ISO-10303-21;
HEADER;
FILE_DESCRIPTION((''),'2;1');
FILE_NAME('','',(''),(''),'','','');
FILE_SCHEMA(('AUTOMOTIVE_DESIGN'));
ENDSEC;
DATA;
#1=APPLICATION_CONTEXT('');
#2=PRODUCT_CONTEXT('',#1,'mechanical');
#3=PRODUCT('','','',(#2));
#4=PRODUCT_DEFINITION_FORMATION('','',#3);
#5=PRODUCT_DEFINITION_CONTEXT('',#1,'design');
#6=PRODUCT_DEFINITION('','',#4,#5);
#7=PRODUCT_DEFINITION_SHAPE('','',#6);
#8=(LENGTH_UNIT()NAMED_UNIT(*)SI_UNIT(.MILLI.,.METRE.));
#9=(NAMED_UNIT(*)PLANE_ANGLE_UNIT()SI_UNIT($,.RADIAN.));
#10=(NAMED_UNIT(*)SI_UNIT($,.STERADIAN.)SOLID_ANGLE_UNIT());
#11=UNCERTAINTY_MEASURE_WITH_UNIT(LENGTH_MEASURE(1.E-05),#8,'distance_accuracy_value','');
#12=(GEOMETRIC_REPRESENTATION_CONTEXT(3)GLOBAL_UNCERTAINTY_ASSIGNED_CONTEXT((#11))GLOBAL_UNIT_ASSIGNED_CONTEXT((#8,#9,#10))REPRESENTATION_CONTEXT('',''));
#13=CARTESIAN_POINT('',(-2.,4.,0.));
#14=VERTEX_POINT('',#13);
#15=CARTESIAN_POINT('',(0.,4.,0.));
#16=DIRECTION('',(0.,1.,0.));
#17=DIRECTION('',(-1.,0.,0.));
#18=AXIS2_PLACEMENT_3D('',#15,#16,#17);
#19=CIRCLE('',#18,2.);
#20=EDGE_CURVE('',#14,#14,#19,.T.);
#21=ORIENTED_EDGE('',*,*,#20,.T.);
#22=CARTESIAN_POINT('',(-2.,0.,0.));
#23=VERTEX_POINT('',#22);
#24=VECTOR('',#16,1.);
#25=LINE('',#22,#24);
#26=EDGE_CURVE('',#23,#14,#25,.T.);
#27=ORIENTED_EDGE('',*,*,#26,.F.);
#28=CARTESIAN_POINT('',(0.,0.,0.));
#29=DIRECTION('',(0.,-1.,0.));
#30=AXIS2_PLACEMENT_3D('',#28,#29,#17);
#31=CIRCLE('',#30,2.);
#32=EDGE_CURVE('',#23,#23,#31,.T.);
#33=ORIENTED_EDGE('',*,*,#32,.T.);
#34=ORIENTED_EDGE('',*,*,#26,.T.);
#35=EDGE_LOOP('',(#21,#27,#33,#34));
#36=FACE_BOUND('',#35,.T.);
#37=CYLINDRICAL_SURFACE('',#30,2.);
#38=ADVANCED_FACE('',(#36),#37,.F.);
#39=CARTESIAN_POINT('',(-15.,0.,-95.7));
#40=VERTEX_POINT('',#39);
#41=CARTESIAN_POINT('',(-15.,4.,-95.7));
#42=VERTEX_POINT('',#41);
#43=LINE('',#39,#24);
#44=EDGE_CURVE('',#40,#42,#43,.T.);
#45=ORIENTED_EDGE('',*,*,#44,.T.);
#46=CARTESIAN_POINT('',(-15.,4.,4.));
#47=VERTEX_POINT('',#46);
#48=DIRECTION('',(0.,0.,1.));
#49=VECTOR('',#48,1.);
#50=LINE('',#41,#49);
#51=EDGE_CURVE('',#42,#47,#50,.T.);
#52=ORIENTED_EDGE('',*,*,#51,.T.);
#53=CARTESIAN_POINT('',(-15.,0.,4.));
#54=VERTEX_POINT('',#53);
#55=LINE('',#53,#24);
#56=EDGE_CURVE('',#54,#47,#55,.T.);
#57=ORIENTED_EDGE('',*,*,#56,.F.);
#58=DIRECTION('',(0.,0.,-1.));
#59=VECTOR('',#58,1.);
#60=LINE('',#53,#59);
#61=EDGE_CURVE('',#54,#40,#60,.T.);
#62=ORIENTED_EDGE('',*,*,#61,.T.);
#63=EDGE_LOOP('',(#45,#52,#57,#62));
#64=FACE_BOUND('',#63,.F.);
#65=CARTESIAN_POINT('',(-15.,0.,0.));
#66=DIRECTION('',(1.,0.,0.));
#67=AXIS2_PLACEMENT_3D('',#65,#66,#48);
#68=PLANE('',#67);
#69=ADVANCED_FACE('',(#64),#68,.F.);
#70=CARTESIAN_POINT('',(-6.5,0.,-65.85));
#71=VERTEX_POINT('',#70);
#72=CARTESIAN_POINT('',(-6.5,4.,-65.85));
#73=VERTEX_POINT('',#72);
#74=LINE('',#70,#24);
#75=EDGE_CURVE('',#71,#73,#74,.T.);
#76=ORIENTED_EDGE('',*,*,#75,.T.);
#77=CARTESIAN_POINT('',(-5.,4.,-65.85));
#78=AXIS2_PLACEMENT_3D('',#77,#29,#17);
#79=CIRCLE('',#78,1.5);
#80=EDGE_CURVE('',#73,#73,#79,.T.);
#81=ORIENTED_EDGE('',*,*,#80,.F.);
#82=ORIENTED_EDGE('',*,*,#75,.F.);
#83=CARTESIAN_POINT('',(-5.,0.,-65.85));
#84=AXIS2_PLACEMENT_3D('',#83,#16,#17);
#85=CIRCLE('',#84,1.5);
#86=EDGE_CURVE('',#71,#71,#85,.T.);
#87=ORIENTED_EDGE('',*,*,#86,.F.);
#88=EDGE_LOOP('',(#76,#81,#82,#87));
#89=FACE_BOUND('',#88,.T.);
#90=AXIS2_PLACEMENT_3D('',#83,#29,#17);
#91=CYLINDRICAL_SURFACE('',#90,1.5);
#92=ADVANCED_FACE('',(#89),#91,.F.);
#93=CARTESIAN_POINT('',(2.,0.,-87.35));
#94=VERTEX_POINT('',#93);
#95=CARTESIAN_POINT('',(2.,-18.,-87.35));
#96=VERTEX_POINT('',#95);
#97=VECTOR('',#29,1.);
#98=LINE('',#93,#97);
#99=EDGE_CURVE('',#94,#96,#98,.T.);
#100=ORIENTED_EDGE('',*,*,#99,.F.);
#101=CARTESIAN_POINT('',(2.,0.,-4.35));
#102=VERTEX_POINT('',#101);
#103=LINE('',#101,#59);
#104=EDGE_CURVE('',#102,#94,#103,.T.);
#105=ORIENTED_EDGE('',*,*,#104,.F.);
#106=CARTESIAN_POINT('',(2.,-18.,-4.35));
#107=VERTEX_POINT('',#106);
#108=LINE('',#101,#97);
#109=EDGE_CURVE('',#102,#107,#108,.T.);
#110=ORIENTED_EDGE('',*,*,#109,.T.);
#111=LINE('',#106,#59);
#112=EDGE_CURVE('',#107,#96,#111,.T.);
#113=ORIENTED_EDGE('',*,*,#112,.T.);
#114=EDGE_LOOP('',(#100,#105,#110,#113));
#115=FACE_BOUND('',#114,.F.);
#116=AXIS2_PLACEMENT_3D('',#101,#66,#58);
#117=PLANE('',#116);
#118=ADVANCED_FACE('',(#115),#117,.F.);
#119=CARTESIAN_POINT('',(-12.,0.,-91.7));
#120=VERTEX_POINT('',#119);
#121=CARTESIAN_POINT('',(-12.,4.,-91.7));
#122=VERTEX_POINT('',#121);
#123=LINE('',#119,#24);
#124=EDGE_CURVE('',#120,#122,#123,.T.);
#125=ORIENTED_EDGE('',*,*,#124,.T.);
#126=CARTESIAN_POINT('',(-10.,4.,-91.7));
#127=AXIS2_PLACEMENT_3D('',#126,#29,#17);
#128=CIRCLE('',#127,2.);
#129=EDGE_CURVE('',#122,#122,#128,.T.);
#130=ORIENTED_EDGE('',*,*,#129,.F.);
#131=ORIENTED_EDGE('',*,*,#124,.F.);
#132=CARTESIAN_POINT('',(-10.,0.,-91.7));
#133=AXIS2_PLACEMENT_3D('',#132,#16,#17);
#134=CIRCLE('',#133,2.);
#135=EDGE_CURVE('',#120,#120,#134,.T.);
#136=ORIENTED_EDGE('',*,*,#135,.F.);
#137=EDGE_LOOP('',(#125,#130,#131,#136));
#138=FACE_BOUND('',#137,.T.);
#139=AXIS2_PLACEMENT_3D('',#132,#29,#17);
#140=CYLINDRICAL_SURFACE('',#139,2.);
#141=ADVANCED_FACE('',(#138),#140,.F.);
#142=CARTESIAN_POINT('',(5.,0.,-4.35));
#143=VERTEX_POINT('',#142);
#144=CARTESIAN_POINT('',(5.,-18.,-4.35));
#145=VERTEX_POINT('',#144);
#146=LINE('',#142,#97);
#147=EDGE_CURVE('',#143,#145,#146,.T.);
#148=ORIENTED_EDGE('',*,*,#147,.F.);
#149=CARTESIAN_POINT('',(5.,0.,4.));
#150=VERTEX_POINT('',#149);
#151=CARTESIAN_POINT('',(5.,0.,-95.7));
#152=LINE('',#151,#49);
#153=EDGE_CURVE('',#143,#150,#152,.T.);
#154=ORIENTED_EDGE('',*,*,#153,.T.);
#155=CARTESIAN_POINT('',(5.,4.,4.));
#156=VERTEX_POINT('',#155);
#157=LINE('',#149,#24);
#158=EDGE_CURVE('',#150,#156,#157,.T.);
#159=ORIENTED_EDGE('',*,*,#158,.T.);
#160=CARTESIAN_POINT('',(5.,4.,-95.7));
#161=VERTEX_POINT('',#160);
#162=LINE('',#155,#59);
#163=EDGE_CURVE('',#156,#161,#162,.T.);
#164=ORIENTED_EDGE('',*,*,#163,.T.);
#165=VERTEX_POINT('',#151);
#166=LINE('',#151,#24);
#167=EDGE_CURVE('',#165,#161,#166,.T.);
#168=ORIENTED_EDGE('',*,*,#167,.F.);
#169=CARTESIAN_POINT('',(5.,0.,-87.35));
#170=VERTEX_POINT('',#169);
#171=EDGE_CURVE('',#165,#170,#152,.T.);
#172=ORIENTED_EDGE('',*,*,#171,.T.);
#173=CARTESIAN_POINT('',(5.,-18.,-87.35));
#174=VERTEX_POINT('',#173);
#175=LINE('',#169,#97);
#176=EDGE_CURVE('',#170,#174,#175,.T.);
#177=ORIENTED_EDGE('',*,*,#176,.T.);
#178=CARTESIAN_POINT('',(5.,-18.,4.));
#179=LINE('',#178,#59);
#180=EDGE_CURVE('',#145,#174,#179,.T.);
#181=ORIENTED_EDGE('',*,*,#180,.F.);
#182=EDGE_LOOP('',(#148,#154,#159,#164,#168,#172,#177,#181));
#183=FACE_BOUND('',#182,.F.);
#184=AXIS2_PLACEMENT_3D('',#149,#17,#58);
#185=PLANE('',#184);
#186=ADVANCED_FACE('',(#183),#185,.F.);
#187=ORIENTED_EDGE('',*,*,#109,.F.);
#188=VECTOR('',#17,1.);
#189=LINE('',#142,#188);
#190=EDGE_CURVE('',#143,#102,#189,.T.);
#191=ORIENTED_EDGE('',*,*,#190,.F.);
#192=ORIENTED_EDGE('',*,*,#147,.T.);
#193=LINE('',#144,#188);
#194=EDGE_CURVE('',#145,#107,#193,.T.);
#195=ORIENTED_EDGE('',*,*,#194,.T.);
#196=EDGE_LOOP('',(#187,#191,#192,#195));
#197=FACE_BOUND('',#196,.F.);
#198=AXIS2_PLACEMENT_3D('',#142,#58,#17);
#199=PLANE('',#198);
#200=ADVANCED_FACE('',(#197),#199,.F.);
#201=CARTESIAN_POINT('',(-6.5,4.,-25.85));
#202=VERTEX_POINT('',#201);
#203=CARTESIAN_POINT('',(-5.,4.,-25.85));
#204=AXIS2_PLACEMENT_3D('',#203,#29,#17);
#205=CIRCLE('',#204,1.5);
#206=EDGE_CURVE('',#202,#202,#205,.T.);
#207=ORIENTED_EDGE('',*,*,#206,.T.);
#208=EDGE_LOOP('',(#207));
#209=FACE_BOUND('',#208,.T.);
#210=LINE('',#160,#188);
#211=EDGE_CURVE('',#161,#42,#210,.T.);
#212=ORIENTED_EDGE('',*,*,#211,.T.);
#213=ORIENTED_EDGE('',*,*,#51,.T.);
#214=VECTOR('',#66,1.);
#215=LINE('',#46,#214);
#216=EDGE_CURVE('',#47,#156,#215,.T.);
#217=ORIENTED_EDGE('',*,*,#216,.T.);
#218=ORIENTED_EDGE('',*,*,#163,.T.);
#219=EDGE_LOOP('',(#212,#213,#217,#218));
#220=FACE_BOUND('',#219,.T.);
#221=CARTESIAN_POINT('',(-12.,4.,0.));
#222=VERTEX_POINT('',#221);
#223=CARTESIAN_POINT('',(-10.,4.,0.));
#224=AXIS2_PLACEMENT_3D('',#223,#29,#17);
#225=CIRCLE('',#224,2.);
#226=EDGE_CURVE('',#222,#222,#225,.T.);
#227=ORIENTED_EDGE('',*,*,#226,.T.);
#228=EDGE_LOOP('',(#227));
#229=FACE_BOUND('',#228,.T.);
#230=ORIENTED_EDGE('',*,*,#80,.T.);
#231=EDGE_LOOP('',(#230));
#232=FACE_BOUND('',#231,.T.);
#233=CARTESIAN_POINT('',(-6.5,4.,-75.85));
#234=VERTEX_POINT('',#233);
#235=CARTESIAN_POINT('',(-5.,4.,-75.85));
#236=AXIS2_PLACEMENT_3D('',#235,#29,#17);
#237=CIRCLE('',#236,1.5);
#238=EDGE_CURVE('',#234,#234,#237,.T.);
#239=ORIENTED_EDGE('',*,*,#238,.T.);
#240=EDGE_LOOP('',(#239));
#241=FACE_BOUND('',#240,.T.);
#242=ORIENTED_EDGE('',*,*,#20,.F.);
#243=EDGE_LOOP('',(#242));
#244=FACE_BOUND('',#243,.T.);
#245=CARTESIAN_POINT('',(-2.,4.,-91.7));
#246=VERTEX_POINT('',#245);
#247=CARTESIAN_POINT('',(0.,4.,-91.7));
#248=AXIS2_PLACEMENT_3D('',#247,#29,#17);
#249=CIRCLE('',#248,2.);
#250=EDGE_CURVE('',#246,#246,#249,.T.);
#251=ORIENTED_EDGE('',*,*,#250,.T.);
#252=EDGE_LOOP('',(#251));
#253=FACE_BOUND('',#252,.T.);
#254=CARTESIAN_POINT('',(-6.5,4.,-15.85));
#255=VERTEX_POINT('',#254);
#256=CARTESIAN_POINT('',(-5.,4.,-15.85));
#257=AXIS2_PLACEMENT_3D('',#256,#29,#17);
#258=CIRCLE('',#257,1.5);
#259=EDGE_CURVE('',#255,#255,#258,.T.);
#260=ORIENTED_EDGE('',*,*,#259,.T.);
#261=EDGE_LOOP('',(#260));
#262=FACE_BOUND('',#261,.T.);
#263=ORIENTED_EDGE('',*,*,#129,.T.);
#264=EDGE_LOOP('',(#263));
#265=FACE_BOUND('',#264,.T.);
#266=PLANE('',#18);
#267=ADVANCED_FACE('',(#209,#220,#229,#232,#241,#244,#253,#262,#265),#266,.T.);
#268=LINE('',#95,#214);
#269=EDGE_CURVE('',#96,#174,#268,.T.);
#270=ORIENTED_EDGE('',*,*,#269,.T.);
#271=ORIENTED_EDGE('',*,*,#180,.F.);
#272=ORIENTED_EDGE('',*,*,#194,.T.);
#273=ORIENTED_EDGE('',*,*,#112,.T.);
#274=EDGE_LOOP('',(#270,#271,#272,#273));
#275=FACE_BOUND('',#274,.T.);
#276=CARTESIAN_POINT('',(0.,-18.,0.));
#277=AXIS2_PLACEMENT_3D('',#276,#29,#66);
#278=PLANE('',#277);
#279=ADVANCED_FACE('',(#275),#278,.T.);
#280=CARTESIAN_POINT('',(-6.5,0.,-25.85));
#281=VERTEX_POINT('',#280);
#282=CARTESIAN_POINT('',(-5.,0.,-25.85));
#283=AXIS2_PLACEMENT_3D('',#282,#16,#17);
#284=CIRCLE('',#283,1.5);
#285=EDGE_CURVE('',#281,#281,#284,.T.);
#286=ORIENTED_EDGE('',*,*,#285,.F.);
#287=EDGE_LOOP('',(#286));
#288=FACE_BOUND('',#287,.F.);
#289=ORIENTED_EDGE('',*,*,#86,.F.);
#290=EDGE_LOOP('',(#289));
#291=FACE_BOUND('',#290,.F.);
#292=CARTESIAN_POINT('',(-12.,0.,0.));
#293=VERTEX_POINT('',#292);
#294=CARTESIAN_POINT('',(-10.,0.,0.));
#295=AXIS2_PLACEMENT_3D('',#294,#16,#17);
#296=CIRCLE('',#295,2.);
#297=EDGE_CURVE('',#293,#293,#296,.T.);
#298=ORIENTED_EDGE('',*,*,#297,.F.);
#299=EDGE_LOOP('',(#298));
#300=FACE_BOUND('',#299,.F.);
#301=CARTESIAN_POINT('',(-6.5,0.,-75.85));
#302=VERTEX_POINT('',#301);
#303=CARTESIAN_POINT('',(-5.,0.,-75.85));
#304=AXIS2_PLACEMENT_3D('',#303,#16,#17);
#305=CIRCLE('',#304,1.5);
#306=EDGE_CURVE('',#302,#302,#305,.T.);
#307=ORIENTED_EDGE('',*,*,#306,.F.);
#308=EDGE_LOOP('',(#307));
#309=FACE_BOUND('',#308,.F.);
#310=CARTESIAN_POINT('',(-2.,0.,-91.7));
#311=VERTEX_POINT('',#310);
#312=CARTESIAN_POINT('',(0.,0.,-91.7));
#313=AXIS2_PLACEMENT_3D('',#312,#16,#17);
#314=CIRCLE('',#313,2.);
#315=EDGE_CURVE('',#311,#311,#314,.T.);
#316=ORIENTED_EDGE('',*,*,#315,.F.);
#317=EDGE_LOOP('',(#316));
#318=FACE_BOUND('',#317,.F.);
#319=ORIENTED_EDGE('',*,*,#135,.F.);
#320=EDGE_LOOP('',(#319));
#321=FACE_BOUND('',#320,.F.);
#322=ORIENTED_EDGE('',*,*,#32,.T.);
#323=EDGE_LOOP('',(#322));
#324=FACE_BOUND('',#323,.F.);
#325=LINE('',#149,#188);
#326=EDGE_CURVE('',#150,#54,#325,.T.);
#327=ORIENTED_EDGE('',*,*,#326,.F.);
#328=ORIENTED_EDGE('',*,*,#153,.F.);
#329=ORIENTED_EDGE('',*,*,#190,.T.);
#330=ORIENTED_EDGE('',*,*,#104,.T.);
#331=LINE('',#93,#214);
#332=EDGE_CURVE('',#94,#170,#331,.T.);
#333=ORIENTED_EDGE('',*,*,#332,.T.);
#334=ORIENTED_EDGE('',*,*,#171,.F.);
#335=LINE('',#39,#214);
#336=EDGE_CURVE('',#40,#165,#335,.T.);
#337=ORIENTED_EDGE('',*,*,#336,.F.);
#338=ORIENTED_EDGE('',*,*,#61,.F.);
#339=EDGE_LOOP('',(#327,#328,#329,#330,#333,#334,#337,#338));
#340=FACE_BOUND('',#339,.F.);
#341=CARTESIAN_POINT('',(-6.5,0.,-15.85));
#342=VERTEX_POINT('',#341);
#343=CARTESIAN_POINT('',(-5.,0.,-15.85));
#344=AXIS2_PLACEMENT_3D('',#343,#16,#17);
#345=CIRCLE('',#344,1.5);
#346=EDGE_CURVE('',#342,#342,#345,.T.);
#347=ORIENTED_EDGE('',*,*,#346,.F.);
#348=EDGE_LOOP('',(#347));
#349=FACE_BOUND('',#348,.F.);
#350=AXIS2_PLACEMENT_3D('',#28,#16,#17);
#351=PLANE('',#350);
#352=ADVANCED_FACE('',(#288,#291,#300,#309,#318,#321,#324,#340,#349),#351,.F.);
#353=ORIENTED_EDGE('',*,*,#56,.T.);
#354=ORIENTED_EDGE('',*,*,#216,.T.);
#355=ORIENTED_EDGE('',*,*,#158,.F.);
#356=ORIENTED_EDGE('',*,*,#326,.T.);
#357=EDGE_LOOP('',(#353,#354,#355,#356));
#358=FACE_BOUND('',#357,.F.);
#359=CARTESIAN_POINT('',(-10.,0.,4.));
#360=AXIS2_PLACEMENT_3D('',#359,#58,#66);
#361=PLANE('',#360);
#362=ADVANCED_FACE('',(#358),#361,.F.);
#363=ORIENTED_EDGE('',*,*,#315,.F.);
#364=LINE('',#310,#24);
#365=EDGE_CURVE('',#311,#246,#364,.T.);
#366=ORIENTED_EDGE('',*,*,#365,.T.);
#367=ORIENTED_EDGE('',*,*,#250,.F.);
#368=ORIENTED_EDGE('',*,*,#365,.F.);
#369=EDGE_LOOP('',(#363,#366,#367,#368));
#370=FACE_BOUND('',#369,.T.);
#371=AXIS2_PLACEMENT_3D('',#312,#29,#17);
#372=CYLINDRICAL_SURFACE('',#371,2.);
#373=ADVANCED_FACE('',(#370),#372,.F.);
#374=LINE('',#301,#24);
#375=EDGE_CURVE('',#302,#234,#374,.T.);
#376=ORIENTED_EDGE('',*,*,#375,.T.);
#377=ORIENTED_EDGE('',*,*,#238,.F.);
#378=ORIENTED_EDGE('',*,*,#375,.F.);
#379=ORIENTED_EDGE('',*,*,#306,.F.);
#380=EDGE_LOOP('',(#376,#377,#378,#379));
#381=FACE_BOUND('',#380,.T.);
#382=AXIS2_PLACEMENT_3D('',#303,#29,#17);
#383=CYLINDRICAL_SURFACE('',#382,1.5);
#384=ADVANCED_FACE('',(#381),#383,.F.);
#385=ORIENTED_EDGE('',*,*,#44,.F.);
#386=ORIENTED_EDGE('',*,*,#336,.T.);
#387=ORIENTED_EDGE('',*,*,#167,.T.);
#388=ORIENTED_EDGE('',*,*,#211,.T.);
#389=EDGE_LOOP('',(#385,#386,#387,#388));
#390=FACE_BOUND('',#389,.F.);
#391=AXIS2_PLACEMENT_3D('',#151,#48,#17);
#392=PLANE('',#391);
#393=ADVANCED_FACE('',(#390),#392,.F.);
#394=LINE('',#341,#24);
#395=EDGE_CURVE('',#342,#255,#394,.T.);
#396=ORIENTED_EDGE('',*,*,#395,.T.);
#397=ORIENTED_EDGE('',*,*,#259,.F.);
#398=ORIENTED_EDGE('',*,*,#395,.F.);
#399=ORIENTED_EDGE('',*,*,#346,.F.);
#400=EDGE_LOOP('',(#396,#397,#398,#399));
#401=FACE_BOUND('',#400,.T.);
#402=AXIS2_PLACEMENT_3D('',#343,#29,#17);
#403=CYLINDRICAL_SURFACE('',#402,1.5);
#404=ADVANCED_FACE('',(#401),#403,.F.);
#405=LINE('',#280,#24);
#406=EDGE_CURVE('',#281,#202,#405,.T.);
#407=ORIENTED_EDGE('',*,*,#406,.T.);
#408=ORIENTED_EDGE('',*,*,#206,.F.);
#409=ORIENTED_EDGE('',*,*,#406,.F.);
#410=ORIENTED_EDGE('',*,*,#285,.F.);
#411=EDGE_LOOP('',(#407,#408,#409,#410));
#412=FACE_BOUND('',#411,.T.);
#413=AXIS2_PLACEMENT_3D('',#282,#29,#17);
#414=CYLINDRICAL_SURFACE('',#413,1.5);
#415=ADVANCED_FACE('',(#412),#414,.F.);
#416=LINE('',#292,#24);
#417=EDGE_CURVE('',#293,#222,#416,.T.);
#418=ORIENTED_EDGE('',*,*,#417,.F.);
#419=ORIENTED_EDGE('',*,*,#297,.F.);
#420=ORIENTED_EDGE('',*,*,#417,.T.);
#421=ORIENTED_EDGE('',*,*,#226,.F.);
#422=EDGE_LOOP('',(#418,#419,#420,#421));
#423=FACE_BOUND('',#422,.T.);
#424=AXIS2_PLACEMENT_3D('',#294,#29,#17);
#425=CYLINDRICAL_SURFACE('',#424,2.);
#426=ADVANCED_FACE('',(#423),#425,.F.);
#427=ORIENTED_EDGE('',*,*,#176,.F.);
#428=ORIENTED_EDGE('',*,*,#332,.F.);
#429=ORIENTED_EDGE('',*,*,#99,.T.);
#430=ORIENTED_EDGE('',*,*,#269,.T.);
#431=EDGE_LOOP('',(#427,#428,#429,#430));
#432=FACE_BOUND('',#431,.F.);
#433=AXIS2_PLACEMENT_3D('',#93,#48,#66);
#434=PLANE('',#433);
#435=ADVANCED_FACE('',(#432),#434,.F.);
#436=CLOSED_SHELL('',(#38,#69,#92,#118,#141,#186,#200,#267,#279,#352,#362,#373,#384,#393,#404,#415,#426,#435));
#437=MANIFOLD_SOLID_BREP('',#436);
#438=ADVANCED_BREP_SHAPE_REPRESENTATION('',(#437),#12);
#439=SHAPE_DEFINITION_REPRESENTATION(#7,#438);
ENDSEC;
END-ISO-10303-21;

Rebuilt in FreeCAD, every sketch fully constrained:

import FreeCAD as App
import Part
import Sketcher
from FreeCAD import Vector

doc = App.newDocument("Part")
body = doc.addObject("PartDesign::Body", "Body")

# Sketch on XZ plane
sketch1 = body.newObject("Sketcher::SketchObject", "Sketch")
sketch1.AttachmentSupport = (doc.getObject("XZ_Plane"), [""])
sketch1.MapMode = "FlatFace"
sketch1.addGeometry([
    Part.LineSegment(Vector(5, 4, 0), Vector(5, -95.7, 0)),  # 0
    Part.LineSegment(Vector(5, -95.7, 0), Vector(-15, -95.7, 0)),  # 1
    Part.LineSegment(Vector(-15, -95.7, 0), Vector(-15, 4, 0)),  # 2
    Part.LineSegment(Vector(-15, 4, 0), Vector(5, 4, 0)),  # 3
    Part.Circle(Vector(0, 0, 0), Vector(0, 0, 1), 2),  # 4
    Part.Circle(Vector(0, -91.7, 0), Vector(0, 0, 1), 2),  # 5
    Part.Circle(Vector(-10, 0, 0), Vector(0, 0, 1), 2),  # 6
    Part.Circle(Vector(-5, -15.85, 0), Vector(0, 0, 1), 1.5),  # 7
    Part.Circle(Vector(-5, -25.85, 0), Vector(0, 0, 1), 1.5),  # 8
    Part.Circle(Vector(-5, -65.85, 0), Vector(0, 0, 1), 1.5),  # 9
    Part.Circle(Vector(-5, -75.85, 0), Vector(0, 0, 1), 1.5),  # 10
    Part.Circle(Vector(-10, -91.7, 0), Vector(0, 0, 1), 2),  # 11
], False)
sketch1.addConstraint([
    Sketcher.Constraint("Coincident", 0, 2, 1, 1),
    Sketcher.Constraint("Coincident", 1, 2, 2, 1),
    Sketcher.Constraint("Coincident", 2, 2, 3, 1),
    Sketcher.Constraint("Coincident", 3, 2, 0, 1),
    Sketcher.Constraint("Vertical", 0),
    Sketcher.Constraint("Horizontal", 1),
    Sketcher.Constraint("Vertical", 2),
    Sketcher.Constraint("Horizontal", 3),
    Sketcher.Constraint("Coincident", 4, 3, -1, 1),
    Sketcher.Constraint("Equal", 4, 5),
    Sketcher.Constraint("Equal", 5, 6),
    Sketcher.Constraint("Equal", 7, 8),
    Sketcher.Constraint("Equal", 8, 9),
    Sketcher.Constraint("Equal", 9, 10),
    Sketcher.Constraint("Equal", 6, 11),
    Sketcher.Constraint("PointOnObject", 5, 3, -2),
    Sketcher.Constraint("PointOnObject", 6, 3, -1),
    Sketcher.Constraint("Horizontal", 5, 3, 11, 3),
    Sketcher.Constraint("Vertical", 7, 3, 8, 3),
    Sketcher.Constraint("Vertical", 8, 3, 9, 3),
    Sketcher.Constraint("Vertical", 9, 3, 10, 3),
    Sketcher.Constraint("Vertical", 6, 3, 11, 3),
    Sketcher.Constraint("Diameter", 4, 4.0),
    Sketcher.Constraint("Diameter", 7, 3.0),
    Sketcher.Constraint("DistanceX", 6, 3, -1, 1, 10.0),
    Sketcher.Constraint("DistanceX", 7, 3, -1, 1, 5.0),
    Sketcher.Constraint("DistanceX", -1, 1, 0, 2, 5.0),
    Sketcher.Constraint("DistanceY", -1, 1, 2, 2, 4.0),
    Sketcher.Constraint("DistanceY", 8, 3, 7, 3, 10.0),
    Sketcher.Constraint("DistanceY", 9, 3, 7, 3, 50.0),
    Sketcher.Constraint("DistanceY", 10, 3, 9, 3, 10.0),
    Sketcher.Constraint("DistanceY", 0, 2, 5, 3, 4.0),
    Sketcher.Constraint("DistanceX", 1, 2, 11, 3, 5.0),
    Sketcher.Constraint("DistanceY", 5, 3, -1, 1, 91.7),
    Sketcher.Constraint("DistanceY", 7, 3, -1, 1, 15.85),
])
pad1 = body.newObject("PartDesign::Pad", "Pad")
pad1.Profile = sketch1
pad1.Length = 4
pad1.Reversed = True

# Sketch on XZ plane
sketch2 = body.newObject("Sketcher::SketchObject", "Sketch001")
sketch2.AttachmentSupport = (doc.getObject("XZ_Plane"), [""])
sketch2.MapMode = "FlatFace"
sketch2.addGeometry([
    Part.LineSegment(Vector(5, -87.35, 0), Vector(5, -4.35, 0)),
    Part.LineSegment(Vector(5, -4.35, 0), Vector(2, -4.35, 0)),
    Part.LineSegment(Vector(2, -4.35, 0), Vector(2, -87.35, 0)),
    Part.LineSegment(Vector(2, -87.35, 0), Vector(5, -87.35, 0)),
], False)
sketch2.addConstraint([
    Sketcher.Constraint("Coincident", 0, 2, 1, 1),
    Sketcher.Constraint("Coincident", 1, 2, 2, 1),
    Sketcher.Constraint("Coincident", 2, 2, 3, 1),
    Sketcher.Constraint("Coincident", 3, 2, 0, 1),
    Sketcher.Constraint("Vertical", 0),
    Sketcher.Constraint("Horizontal", 1),
    Sketcher.Constraint("Vertical", 2),
    Sketcher.Constraint("Horizontal", 3),
    Sketcher.Constraint("DistanceX", 1, 2, 1, 1, 3.0),
    Sketcher.Constraint("DistanceY", 0, 1, 0, 2, 83.0),
    Sketcher.Constraint("DistanceX", -1, 1, 0, 2, 5.0),
    Sketcher.Constraint("DistanceY", 0, 2, -1, 1, 4.35),
])
pad2 = body.newObject("PartDesign::Pad", "Pad001")
pad2.Profile = sketch2
pad2.Length = 18

doc.recompute()
